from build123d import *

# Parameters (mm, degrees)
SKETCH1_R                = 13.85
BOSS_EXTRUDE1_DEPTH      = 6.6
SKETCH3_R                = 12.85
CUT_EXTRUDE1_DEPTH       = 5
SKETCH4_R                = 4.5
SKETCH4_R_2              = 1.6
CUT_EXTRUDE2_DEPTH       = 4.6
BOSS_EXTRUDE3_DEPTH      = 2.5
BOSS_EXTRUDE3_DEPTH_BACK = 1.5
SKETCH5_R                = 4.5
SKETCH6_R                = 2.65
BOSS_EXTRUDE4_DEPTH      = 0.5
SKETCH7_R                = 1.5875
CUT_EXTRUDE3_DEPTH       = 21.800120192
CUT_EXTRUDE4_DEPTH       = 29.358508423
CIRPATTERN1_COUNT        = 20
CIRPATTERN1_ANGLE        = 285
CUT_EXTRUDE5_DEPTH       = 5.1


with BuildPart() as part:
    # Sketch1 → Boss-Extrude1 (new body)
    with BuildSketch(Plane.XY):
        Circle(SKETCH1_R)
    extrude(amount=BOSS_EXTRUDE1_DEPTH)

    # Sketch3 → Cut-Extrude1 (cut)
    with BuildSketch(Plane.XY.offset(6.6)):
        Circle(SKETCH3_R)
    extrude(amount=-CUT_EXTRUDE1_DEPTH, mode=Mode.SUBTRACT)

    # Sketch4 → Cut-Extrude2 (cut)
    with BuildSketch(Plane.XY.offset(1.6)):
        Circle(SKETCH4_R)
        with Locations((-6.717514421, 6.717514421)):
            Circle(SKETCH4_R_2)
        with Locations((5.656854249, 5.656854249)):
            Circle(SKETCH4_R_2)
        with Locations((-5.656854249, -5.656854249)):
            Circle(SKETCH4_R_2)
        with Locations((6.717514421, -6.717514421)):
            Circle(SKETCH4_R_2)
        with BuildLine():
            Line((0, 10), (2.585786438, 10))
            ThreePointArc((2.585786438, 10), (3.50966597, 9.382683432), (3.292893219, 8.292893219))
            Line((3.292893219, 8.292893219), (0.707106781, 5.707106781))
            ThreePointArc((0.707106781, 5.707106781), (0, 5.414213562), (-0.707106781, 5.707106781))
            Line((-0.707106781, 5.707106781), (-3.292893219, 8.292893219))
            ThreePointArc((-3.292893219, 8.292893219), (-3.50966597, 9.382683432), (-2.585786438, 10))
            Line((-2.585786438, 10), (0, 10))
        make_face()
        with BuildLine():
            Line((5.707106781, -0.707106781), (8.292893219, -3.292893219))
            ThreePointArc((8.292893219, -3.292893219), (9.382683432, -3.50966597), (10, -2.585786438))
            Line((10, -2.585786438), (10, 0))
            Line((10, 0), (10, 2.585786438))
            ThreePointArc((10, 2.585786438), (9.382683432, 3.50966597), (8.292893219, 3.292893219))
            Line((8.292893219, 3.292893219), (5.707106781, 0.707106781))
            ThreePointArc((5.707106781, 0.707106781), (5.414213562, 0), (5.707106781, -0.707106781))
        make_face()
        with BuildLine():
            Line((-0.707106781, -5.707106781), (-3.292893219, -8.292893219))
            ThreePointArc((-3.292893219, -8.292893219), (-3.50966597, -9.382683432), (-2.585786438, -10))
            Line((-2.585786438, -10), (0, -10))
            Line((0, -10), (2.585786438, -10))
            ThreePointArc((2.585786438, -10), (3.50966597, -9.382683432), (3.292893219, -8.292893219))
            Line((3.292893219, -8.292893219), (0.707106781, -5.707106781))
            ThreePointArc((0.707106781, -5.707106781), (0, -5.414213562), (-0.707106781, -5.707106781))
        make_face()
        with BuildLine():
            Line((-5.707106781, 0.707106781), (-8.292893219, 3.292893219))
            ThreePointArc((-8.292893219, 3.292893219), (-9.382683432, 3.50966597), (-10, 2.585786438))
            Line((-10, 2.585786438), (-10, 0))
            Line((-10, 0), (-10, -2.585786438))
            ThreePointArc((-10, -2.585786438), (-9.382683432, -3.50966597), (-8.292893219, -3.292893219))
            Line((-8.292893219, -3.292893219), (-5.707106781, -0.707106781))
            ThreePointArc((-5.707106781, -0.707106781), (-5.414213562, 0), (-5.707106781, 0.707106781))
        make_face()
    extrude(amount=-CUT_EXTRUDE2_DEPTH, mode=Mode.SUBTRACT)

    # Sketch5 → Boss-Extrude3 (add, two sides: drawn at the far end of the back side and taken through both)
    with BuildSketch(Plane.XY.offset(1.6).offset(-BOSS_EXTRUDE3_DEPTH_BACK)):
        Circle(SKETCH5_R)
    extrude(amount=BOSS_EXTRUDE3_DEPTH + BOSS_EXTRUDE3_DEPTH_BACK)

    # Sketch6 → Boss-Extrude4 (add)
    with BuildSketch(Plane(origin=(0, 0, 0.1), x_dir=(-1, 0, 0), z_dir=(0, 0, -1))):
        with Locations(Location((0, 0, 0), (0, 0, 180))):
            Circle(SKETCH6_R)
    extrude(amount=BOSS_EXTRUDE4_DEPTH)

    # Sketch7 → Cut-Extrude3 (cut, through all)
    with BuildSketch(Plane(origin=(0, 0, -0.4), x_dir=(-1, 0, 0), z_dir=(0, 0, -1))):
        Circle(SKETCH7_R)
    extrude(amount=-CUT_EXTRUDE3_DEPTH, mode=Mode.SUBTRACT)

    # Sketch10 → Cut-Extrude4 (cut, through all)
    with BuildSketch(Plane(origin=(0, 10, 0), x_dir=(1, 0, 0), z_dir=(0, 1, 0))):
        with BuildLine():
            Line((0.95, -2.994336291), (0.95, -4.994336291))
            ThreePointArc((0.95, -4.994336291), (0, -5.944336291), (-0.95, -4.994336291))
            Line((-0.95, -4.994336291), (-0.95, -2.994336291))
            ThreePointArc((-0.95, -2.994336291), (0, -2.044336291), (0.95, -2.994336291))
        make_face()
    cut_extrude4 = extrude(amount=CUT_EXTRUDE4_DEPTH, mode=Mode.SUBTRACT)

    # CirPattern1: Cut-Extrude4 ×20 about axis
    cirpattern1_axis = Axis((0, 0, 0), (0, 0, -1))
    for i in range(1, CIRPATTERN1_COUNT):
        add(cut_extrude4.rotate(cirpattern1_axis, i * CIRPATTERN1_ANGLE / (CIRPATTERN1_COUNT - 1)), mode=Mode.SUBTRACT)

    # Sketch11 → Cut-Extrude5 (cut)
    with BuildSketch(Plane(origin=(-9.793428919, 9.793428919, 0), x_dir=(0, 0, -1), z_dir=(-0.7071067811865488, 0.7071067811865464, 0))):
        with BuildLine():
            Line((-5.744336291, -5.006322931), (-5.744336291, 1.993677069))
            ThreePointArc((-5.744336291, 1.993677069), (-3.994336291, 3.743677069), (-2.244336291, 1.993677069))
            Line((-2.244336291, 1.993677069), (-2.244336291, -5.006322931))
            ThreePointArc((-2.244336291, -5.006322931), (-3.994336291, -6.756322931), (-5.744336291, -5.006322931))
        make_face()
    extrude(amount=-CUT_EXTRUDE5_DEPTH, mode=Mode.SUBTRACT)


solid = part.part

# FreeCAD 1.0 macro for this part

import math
import FreeCAD as App
import Part
import Sketcher
Q = App.Units.Quantity

doc = App.newDocument("Part")
params = doc.addObject("Spreadsheet::Sheet", "Params")
for row, (alias, value) in enumerate([
    ("sketch1_diameter", "27.7 mm"),
    ("pad1_length", "6.6 mm"),
    ("sketch2_diameter", "25.7 mm"),
    ("pocket1_length", "5 mm"),
    ("sketch3_diameter", "9 mm"),
    ("sketch3_radius", "1 mm"),
    ("sketch3_diameter2", "3.2 mm"),
    ("pocket2_length", "4.6 mm"),
    ("sketch4_diameter", "9 mm"),
    ("pad2_length", "2.5 mm"),
    ("pad2_length2", "1.5 mm"),
    ("sketch5_diameter", "5.3 mm"),
    ("pad3_length", "0.5 mm"),
    ("sketch7_height", "2 mm"),
    ("sketch7_radius", "0.95 mm"),
    ("sketch8_height", "7 mm"),
    ("sketch8_radius", "1.75 mm"),
    ("pocket5_length", "5.1 mm"),
], start=1):
    params.set(f"A{row}", alias)
    params.set(f"B{row}", "=" + value)
    params.setAlias(f"B{row}", alias)

body = doc.addObject("PartDesign::Body", "Body")

# Sketch on XY plane
sketch1 = body.newObject("Sketcher::SketchObject", "Sketch")
sketch1.AttachmentSupport = (doc.getObject("XY_Plane"), [""])
sketch1.MapMode = "FlatFace"
sketch1.addGeometry(Part.Circle(App.Vector(0, 0, 0), App.Vector(0, 0, 1), 14), False)
sketch1.addConstraint([
    Sketcher.Constraint("Coincident", 0, 3, -1, 1),
    Sketcher.Constraint("Diameter", 0, Q("27.7 mm")),
])
sketch1.setExpression("Constraints[1]", "Params.sketch1_diameter")
pad1 = body.newObject("PartDesign::Pad", "Pad")
pad1.Profile = sketch1
pad1.setExpression("Length", "Params.pad1_length")

# Sketch on XY plane
sketch2 = body.newObject("Sketcher::SketchObject", "Sketch001")
sketch2.AttachmentSupport = (doc.getObject("XY_Plane"), [""])
sketch2.MapMode = "FlatFace"
sketch2.AttachmentOffset = App.Placement(App.Vector(0, 0, 6.6), App.Rotation())
sketch2.addGeometry(Part.Circle(App.Vector(0, 0, 0), App.Vector(0, 0, 1), 13), False)
sketch2.addConstraint([
    Sketcher.Constraint("Coincident", 0, 3, -1, 1),
    Sketcher.Constraint("Diameter", 0, Q("25.7 mm")),
])
sketch2.setExpression("Constraints[1]", "Params.sketch2_diameter")
pocket1 = body.newObject("PartDesign::Pocket", "Pocket")
pocket1.Profile = sketch2
pocket1.setExpression("Length", "Params.pocket1_length")

# Sketch on XY plane
sketch3 = body.newObject("Sketcher::SketchObject", "Sketch002")
sketch3.AttachmentSupport = (doc.getObject("XY_Plane"), [""])
sketch3.MapMode = "FlatFace"
sketch3.AttachmentOffset = App.Placement(App.Vector(0, 0, 1.6), App.Rotation())
sketch3.addGeometry([
    Part.Circle(App.Vector(0, 0, 0), App.Vector(0, 0, 1), 4.5),  # 0
    Part.Circle(App.Vector(-6.7, 6.7, 0), App.Vector(0, 0, 1), 1.6),  # 1
    Part.Circle(App.Vector(5.7, 5.7, 0), App.Vector(0, 0, 1), 1.6),  # 2
    Part.Circle(App.Vector(-5.7, -5.7, 0), App.Vector(0, 0, 1), 1.6),  # 3
    Part.Circle(App.Vector(6.7, -6.7, 0), App.Vector(0, 0, 1), 1.6),  # 4
    Part.ArcOfCircle(Part.Circle(App.Vector(2.6, 9, 0), App.Vector(0, 0, 1), 1), math.radians(-45), math.radians(90)),  # 5
    Part.LineSegment(App.Vector(2.6, 10, 0), App.Vector(-2.6, 10, 0)),  # 6
    Part.ArcOfCircle(Part.Circle(App.Vector(-2.6, 9, 0), App.Vector(0, 0, 1), 1), math.radians(90), math.radians(225)),  # 7
    Part.LineSegment(App.Vector(-3.3, 8.3, 0), App.Vector(-0.7, 5.7, 0)),  # 8
    Part.ArcOfCircle(Part.Circle(App.Vector(0, 6.4, 0), App.Vector(0, 0, 1), 1), math.radians(-135), math.radians(-45)),  # 9
    Part.LineSegment(App.Vector(0.7, 5.7, 0), App.Vector(3.3, 8.3, 0)),  # 10
    Part.LineSegment(App.Vector(5.7, -0.7, 0), App.Vector(8.3, -3.3, 0)),  # 11
    Part.ArcOfCircle(Part.Circle(App.Vector(9, -2.6, 0), App.Vector(0, 0, 1), 1), math.radians(-135), math.radians(0)),  # 12
    Part.LineSegment(App.Vector(10, -2.6, 0), App.Vector(10, 2.6, 0)),  # 13
    Part.ArcOfCircle(Part.Circle(App.Vector(9, 2.6, 0), App.Vector(0, 0, 1), 1), math.radians(0), math.radians(135)),  # 14
    Part.LineSegment(App.Vector(8.3, 3.3, 0), App.Vector(5.7, 0.7, 0)),  # 15
    Part.ArcOfCircle(Part.Circle(App.Vector(6.4, 0, 0), App.Vector(0, 0, 1), 1), math.radians(135), math.radians(225)),  # 16
    Part.LineSegment(App.Vector(-0.7, -5.7, 0), App.Vector(-3.3, -8.3, 0)),  # 17
    Part.ArcOfCircle(Part.Circle(App.Vector(-2.6, -9, 0), App.Vector(0, 0, 1), 1), math.radians(135), math.radians(270)),  # 18
    Part.LineSegment(App.Vector(-2.6, -10, 0), App.Vector(2.6, -10, 0)),  # 19
    Part.ArcOfCircle(Part.Circle(App.Vector(2.6, -9, 0), App.Vector(0, 0, 1), 1), math.radians(-90), math.radians(45)),  # 20
    Part.LineSegment(App.Vector(3.3, -8.3, 0), App.Vector(0.7, -5.7, 0)),  # 21
    Part.ArcOfCircle(Part.Circle(App.Vector(0, -6.4, 0), App.Vector(0, 0, 1), 1), math.radians(45), math.radians(135)),  # 22
    Part.LineSegment(App.Vector(-5.7, 0.7, 0), App.Vector(-8.3, 3.3, 0)),  # 23
    Part.ArcOfCircle(Part.Circle(App.Vector(-9, 2.6, 0), App.Vector(0, 0, 1), 1), math.radians(45), math.radians(180)),  # 24
    Part.LineSegment(App.Vector(-10, 2.6, 0), App.Vector(-10, -2.6, 0)),  # 25
    Part.ArcOfCircle(Part.Circle(App.Vector(-9, -2.6, 0), App.Vector(0, 0, 1), 1), math.radians(-180), math.radians(-45)),  # 26
    Part.LineSegment(App.Vector(-8.3, -3.3, 0), App.Vector(-5.7, -0.7, 0)),  # 27
    Part.ArcOfCircle(Part.Circle(App.Vector(-6.4, 0, 0), App.Vector(0, 0, 1), 1), math.radians(-45), math.radians(45)),  # 28
], False)
sketch3.addConstraint([
    Sketcher.Constraint("Tangent", 5, 2, 6, 1),
    Sketcher.Constraint("Tangent", 6, 2, 7, 1),
    Sketcher.Constraint("Tangent", 7, 2, 8, 1),
    Sketcher.Constraint("Tangent", 8, 2, 9, 1),
    Sketcher.Constraint("Tangent", 9, 2, 10, 1),
    Sketcher.Constraint("Tangent", 10, 2, 5, 1),
    Sketcher.Constraint("Tangent", 11, 2, 12, 1),
    Sketcher.Constraint("Tangent", 12, 2, 13, 1),
    Sketcher.Constraint("Tangent", 13, 2, 14, 1),
    Sketcher.Constraint("Tangent", 14, 2, 15, 1),
    Sketcher.Constraint("Tangent", 15, 2, 16, 1),
    Sketcher.Constraint("Tangent", 16, 2, 11, 1),
    Sketcher.Constraint("Tangent", 17, 2, 18, 1),
    Sketcher.Constraint("Tangent", 18, 2, 19, 1),
    Sketcher.Constraint("Tangent", 19, 2, 20, 1),
    Sketcher.Constraint("Tangent", 20, 2, 21, 1),
    Sketcher.Constraint("Tangent", 21, 2, 22, 1),
    Sketcher.Constraint("Tangent", 22, 2, 17, 1),
    Sketcher.Constraint("Tangent", 23, 2, 24, 1),
    Sketcher.Constraint("Tangent", 24, 2, 25, 1),
    Sketcher.Constraint("Tangent", 25, 2, 26, 1),
    Sketcher.Constraint("Tangent", 26, 2, 27, 1),
    Sketcher.Constraint("Tangent", 27, 2, 28, 1),
    Sketcher.Constraint("Tangent", 28, 2, 23, 1),
    Sketcher.Constraint("Horizontal", 6),
    Sketcher.Constraint("Vertical", 13),
    Sketcher.Constraint("Horizontal", 19),
    Sketcher.Constraint("Vertical", 25),
    Sketcher.Constraint("Coincident", 0, 3, -1, 1),
    Sketcher.Constraint("Equal", 1, 2),
    Sketcher.Constraint("Equal", 2, 3),
    Sketcher.Constraint("Equal", 3, 4),
    Sketcher.Constraint("Equal", 5, 7),
    Sketcher.Constraint("Equal", 7, 9),
    Sketcher.Constraint("Equal", 9, 12),
    Sketcher.Constraint("Equal", 12, 14),
    Sketcher.Constraint("Equal", 14, 16),
    Sketcher.Constraint("Equal", 16, 18),
    Sketcher.Constraint("Equal", 18, 20),
    Sketcher.Constraint("Equal", 20, 22),
    Sketcher.Constraint("Equal", 22, 24),
    Sketcher.Constraint("Equal", 24, 26),
    Sketcher.Constraint("Equal", 26, 28),
    Sketcher.Constraint("Symmetric", 2, 3, 3, 3, -1, 1),
    Sketcher.Constraint("Symmetric", 1, 3, 4, 3, -1, 1),
    Sketcher.Constraint("Symmetric", 5, 3, 18, 3, -1, 1),
    Sketcher.Constraint("Symmetric", 9, 3, 22, 3, -1, 1),
    Sketcher.Constraint("Symmetric", 12, 3, 24, 3, -1, 1),
    Sketcher.Constraint("Symmetric", 16, 3, 28, 3, -1, 1),
    Sketcher.Constraint("Symmetric", 8, 2, 9, 2, -2),
    Sketcher.Constraint("Symmetric", 14, 2, 23, 2, -2),
    Sketcher.Constraint("Perpendicular", 8, 10),
    Sketcher.Constraint("Perpendicular", 10, 11),
    Sketcher.Constraint("Perpendicular", 17, 21),
    Sketcher.Constraint("Perpendicular", 23, 27),
    Sketcher.Constraint("Equal", 19, 13),
    Sketcher.Constraint("Diameter", 0, Q("9 mm")),
    Sketcher.Constraint("Radius", 5, Q("1 mm")),
    Sketcher.Constraint("Diameter", 1, Q("3.2 mm")),
    Sketcher.Constraint("DistanceY", -1, 1, 5, 3, Q("9 mm")),
    Sketcher.Constraint("DistanceX", -1, 1, 12, 3, Q("9 mm")),
    Sketcher.Constraint("DistanceX", 23, 2, 7, 2, Q("5 mm")),
    Sketcher.Constraint("DistanceX", 1, 3, 5, 3, Q("9.303301 mm")),
    Sketcher.Constraint("DistanceY", 9, 3, 1, 3, Q("0.303301 mm")),
    Sketcher.Constraint("DistanceX", 1, 3, 2, 3, Q("12.374369 mm")),
    Sketcher.Constraint("DistanceY", 2, 3, 1, 3, Q("1.06066 mm")),
])
sketch3.setExpression("Constraints[56]", "Params.sketch3_diameter")
sketch3.setExpression("Constraints[57]", "Params.sketch3_radius")
sketch3.setExpression("Constraints[58]", "Params.sketch3_diameter2")
pocket2 = body.newObject("PartDesign::Pocket", "Pocket001")
pocket2.Profile = sketch3
pocket2.setExpression("Length", "Params.pocket2_length")

# Sketch on XY plane
sketch4 = body.newObject("Sketcher::SketchObject", "Sketch003")
sketch4.AttachmentSupport = (doc.getObject("XY_Plane"), [""])
sketch4.MapMode = "FlatFace"
sketch4.AttachmentOffset = App.Placement(App.Vector(0, 0, 1.6), App.Rotation())
sketch4.addGeometry(Part.Circle(App.Vector(0, 0, 0), App.Vector(0, 0, 1), 4.5), False)
sketch4.addConstraint([
    Sketcher.Constraint("Coincident", 0, 3, -1, 1),
    Sketcher.Constraint("Diameter", 0, Q("9 mm")),
])
sketch4.setExpression("Constraints[1]", "Params.sketch4_diameter")
pad2 = body.newObject("PartDesign::Pad", "Pad001")
pad2.Profile = sketch4
pad2.Type = "TwoLengths"
pad2.setExpression("Length", "Params.pad2_length")
pad2.setExpression("Length2", "Params.pad2_length2")

# Sketch on XY plane
sketch5 = body.newObject("Sketcher::SketchObject", "Sketch004")
sketch5.AttachmentSupport = (doc.getObject("XY_Plane"), [""])
sketch5.MapMode = "FlatFace"
sketch5.AttachmentOffset = App.Placement(App.Vector(0, 0, 0.1), App.Rotation())
sketch5.addGeometry(Part.Circle(App.Vector(0, 0, 0), App.Vector(0, 0, 1), 2.6), False)
sketch5.addConstraint([
    Sketcher.Constraint("Coincident", 0, 3, -1, 1),
    Sketcher.Constraint("Diameter", 0, Q("5.3 mm")),
])
sketch5.setExpression("Constraints[1]", "Params.sketch5_diameter")
pad3 = body.newObject("PartDesign::Pad", "Pad002")
pad3.Profile = sketch5
pad3.setExpression("Length", "Params.pad3_length")
pad3.Reversed = True

# Sketch on XY plane
sketch6 = body.newObject("Sketcher::SketchObject", "Sketch005")
sketch6.AttachmentSupport = (doc.getObject("XY_Plane"), [""])
sketch6.MapMode = "FlatFace"
sketch6.AttachmentOffset = App.Placement(App.Vector(0, 0, -0.4), App.Rotation())
sketch6.addGeometry(Part.Circle(App.Vector(0, 0, 0), App.Vector(0, 0, 1), 1.6), False)
sketch6.addConstraint([
    Sketcher.Constraint("Coincident", 0, 3, -1, 1),
    Sketcher.Constraint("Diameter", 0, Q("3.175 mm")),
])
pocket3 = body.newObject("PartDesign::Pocket", "Pocket002")
pocket3.Profile = sketch6
pocket3.Type = "ThroughAll"
pocket3.Reversed = True

# Sketch on XZ plane
sketch7 = body.newObject("Sketcher::SketchObject", "Sketch006")
sketch7.AttachmentSupport = (doc.getObject("XZ_Plane"), [""])
sketch7.MapMode = "FlatFace"
sketch7.AttachmentOffset = App.Placement(App.Vector(0, 0, -10), App.Rotation())
sketch7.addGeometry([
    Part.LineSegment(App.Vector(0.9, 5, 0), App.Vector(0.9, 3, 0)),
    Part.ArcOfCircle(Part.Circle(App.Vector(0, 3, 0), App.Vector(0, 0, 1), 0.9), math.radians(180), math.radians(360)),
    Part.LineSegment(App.Vector(-0.9, 3, 0), App.Vector(-0.9, 5, 0)),
    Part.ArcOfCircle(Part.Circle(App.Vector(0, 5, 0), App.Vector(0, 0, 1), 0.9), math.radians(0), math.radians(180)),
], False)
sketch7.addConstraint([
    Sketcher.Constraint("Tangent", 0, 2, 1, 2),
    Sketcher.Constraint("Tangent", 1, 1, 2, 1),
    Sketcher.Constraint("Tangent", 2, 2, 3, 2),
    Sketcher.Constraint("Tangent", 3, 1, 0, 1),
    Sketcher.Constraint("Vertical", 0),
    Sketcher.Constraint("Vertical", 2),
    Sketcher.Constraint("PointOnObject", 1, 3, -2),
    Sketcher.Constraint("DistanceY", 0, 2, 0, 1, Q("2 mm")),
    Sketcher.Constraint("Radius", 1, Q("0.95 mm")),
    Sketcher.Constraint("DistanceY", -1, 1, 1, 3, Q("2.994336 mm")),
])
sketch7.setExpression("Constraints[7]", "Params.sketch7_height")
sketch7.setExpression("Constraints[8]", "Params.sketch7_radius")
pocket4 = body.newObject("PartDesign::Pocket", "Pocket003")
pocket4.Profile = sketch7
pocket4.Type = "ThroughAll"
doc.recompute()

polarpattern = body.newObject("PartDesign::PolarPattern", "PolarPattern")
polarpattern.Originals = [pocket4]
polarpattern.Axis = (doc.getObject("Z_Axis"), [""])
polarpattern.Angle = 285
polarpattern.Occurrences = 20
polarpattern.Reversed = True
body.Tip = polarpattern

# Sketch on an angled plane
sketch8 = body.newObject("Sketcher::SketchObject", "Sketch007")
sketch8.Placement = App.Placement(App.Vector(-9.793429, 9.793429, 0), App.Rotation(App.Vector(0, 0, -1), App.Vector(-0.707106781, -0.707106781, 0), App.Vector(-0.707106781, 0.707106781, 0), "ZXY"))
sketch8.addGeometry([
    Part.LineSegment(App.Vector(-5.7, 2, 0), App.Vector(-5.7, -5, 0)),
    Part.ArcOfCircle(Part.Circle(App.Vector(-4, -5, 0), App.Vector(0, 0, 1), 1.8), math.radians(180), math.radians(360)),
    Part.LineSegment(App.Vector(-2.2, -5, 0), App.Vector(-2.2, 2, 0)),
    Part.ArcOfCircle(Part.Circle(App.Vector(-4, 2, 0), App.Vector(0, 0, 1), 1.8), math.radians(0), math.radians(180)),
], False)
sketch8.addConstraint([
    Sketcher.Constraint("Tangent", 0, 2, 1, 1),
    Sketcher.Constraint("Tangent", 1, 2, 2, 1),
    Sketcher.Constraint("Tangent", 2, 2, 3, 1),
    Sketcher.Constraint("Tangent", 3, 2, 0, 1),
    Sketcher.Constraint("Vertical", 0),
    Sketcher.Constraint("Vertical", 2),
    Sketcher.Constraint("DistanceY", 0, 2, 0, 1, Q("7 mm")),
    Sketcher.Constraint("Radius", 1, Q("1.75 mm")),
    Sketcher.Constraint("DistanceX", 1, 3, -1, 1, Q("3.994336 mm")),
    Sketcher.Constraint("DistanceY", 1, 3, -1, 1, Q("5.006323 mm")),
])
sketch8.setExpression("Constraints[6]", "Params.sketch8_height")
sketch8.setExpression("Constraints[7]", "Params.sketch8_radius")
pocket5 = body.newObject("PartDesign::Pocket", "Pocket004")
pocket5.Profile = sketch8
pocket5.setExpression("Length", "Params.pocket5_length")

doc.recompute()
